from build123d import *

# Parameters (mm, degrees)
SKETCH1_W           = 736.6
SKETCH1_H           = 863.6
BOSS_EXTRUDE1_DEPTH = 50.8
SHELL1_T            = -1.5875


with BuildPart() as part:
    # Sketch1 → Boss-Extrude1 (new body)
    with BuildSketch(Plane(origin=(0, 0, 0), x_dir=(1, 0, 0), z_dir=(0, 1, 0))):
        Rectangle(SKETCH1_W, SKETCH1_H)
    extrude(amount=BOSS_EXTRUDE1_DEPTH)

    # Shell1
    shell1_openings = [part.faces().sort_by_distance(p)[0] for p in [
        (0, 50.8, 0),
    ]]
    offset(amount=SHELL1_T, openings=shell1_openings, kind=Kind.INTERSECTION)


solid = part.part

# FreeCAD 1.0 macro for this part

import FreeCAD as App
import Part
import Sketcher
Q = App.Units.Quantity


def faces_at(feature, points):
    """Names of the faces that lie closest to the given points."""
    faces = feature.Shape.Faces
    near = lambda p: min(range(len(faces)), key=lambda i: faces[i].distToShape(Part.Vertex(*p))[0])
    return sorted({f"Face{near(p) + 1}" for p in points})


def add_polygon(sketch, points):
    """Adds a closed chain of lines whose ends are joined by coincident constraints."""
    first, n = sketch.GeometryCount, len(points)
    for a, b in zip(points, points[1:] + points[:1]):
        sketch.addGeometry(Part.LineSegment(App.Vector(*a, 0), App.Vector(*b, 0)), False)
    for i in range(n):
        sketch.addConstraint(Sketcher.Constraint("Coincident", first + i, 2, first + (i + 1) % n, 1))

doc = App.newDocument("Part")
body = doc.addObject("PartDesign::Body", "Body")

sketch1 = doc.addObject("Sketcher::SketchObject", "Sketch")
body.addObject(sketch1)
sketch1.AttachmentSupport = (doc.XZ_Plane, [""])
sketch1.MapMode = "FlatFace"
add_polygon(sketch1, [(-368, -432), (-368, 432), (368, 432), (368, -432)])
sketch1.addConstraint([
    Sketcher.Constraint("Vertical", 0),
    Sketcher.Constraint("Horizontal", 1),
    Sketcher.Constraint("Vertical", 2),
    Sketcher.Constraint("Horizontal", 3),
    Sketcher.Constraint("Symmetric", 0, 2, 2, 2, -1, 1),
    Sketcher.Constraint("DistanceX", 1, 1, 1, 2, Q("29 in")),
    Sketcher.Constraint("DistanceY", 0, 1, 0, 2, Q("34 in")),
])
pad1 = doc.addObject("PartDesign::Pad", "Pad")
body.addObject(pad1)
pad1.Profile = sketch1
pad1.Length = Q("2 in")
pad1.Reversed = True
doc.recompute()

thickness = doc.addObject("PartDesign::Thickness", "Thickness")
body.addObject(thickness)
thickness.Base = (pad1, faces_at(pad1, [(0, 50.8, 0)]))
thickness.Value = Q("0.0625 in")
thickness.Reversed = True
thickness.Join = "Intersection"

doc.recompute()
